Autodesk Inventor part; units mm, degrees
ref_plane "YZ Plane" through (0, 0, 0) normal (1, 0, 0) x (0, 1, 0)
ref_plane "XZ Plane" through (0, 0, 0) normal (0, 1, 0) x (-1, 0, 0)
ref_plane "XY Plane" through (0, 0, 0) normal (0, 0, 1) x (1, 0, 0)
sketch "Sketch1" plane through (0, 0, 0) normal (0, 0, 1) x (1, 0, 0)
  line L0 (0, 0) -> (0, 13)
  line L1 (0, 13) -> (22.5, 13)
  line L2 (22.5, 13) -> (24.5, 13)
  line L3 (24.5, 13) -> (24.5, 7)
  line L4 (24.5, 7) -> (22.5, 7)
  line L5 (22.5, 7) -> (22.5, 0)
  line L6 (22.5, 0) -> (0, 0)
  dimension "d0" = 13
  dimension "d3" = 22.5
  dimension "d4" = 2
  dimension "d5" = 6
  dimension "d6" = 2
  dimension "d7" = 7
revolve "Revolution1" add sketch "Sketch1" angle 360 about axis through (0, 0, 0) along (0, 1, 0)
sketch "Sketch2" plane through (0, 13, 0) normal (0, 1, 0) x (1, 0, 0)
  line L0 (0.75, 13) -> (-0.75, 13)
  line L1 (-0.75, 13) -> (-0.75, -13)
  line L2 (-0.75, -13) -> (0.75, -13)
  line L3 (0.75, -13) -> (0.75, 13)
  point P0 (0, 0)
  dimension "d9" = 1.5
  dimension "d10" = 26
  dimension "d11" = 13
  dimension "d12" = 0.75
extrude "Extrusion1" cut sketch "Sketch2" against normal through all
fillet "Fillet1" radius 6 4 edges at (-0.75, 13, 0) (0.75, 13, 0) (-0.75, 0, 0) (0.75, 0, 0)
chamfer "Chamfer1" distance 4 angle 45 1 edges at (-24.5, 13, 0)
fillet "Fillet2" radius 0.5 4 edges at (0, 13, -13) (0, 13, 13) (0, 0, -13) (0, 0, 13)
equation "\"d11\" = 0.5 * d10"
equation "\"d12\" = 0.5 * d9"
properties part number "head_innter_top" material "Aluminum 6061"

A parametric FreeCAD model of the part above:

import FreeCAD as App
import Part
import Sketcher

V = App.Vector


def edges_at(feature, points):
    """Names of the edges that pass closest to the given points."""
    edges = feature.Shape.Edges
    near = lambda p: min(range(len(edges)), key=lambda i: edges[i].distToShape(Part.Vertex(*p))[0])
    return sorted({f"Edge{near(p) + 1}" for p in points})


def add_polygon(sketch, points):
    """Adds a closed chain of lines whose ends are joined by coincident constraints."""
    first, n = sketch.GeometryCount, len(points)
    for a, b in zip(points, points[1:] + points[:1]):
        sketch.addGeometry(Part.LineSegment(App.Vector(*a, 0), App.Vector(*b, 0)), False)
    for i in range(n):
        sketch.addConstraint(Sketcher.Constraint("Coincident", first + i, 2, first + (i + 1) % n, 1))

doc = App.newDocument("Part")
params = doc.addObject("Spreadsheet::Sheet", "Params")
for row, (alias, value) in enumerate([
    ("sketch1_width", "2 mm"),
    ("sketch1_height", "13 mm"),
    ("sketch1_height2", "7 mm"),
    ("sketch1_width2", "22.5 mm"),
    ("revolution_angle", "360 deg"),
    ("sketch2_height", "26 mm"),
    ("sketch2_width", "1.5 mm"),
    ("fillet_radius", "6 mm"),
    ("chamfer_size", "4 mm"),
    ("fillet2_radius", "0.5 mm"),
], start=1):
    params.set(f"A{row}", alias)
    params.set(f"B{row}", "=" + value)
    params.setAlias(f"B{row}", alias)

body = doc.addObject("PartDesign::Body", "Body")

# Sketch on XY plane
sketch1 = body.newObject("Sketcher::SketchObject", "Sketch")
sketch1.AttachmentSupport = (doc.getObject("XY_Plane"), [""])
sketch1.MapMode = "FlatFace"
add_polygon(sketch1, [(0, 13), (0, 0), (22.5, 0), (22.5, 7), (24.5, 7), (24.5, 13)])  # lines 0-5
sketch1.addConstraint([
    Sketcher.Constraint("Vertical", 0),
    Sketcher.Constraint("Horizontal", 1),
    Sketcher.Constraint("Vertical", 2),
    Sketcher.Constraint("Horizontal", 3),
    Sketcher.Constraint("Vertical", 4),
    Sketcher.Constraint("Horizontal", 5),
    Sketcher.Constraint("Coincident", 0, 2, -1, 1),
    Sketcher.Constraint("DistanceX", 3, 1, 3, 2, 2.0),
    Sketcher.Constraint("DistanceY", 0, 2, 0, 1, 13.0),
    Sketcher.Constraint("DistanceY", 2, 1, 2, 2, 7.0),
    Sketcher.Constraint("DistanceX", 1, 1, 1, 2, 22.5),
])
sketch1.setExpression("Constraints[13]", "Params.sketch1_width")
sketch1.setExpression("Constraints[14]", "Params.sketch1_height")
sketch1.setExpression("Constraints[15]", "Params.sketch1_height2")
sketch1.setExpression("Constraints[16]", "Params.sketch1_width2")
revolution = body.newObject("PartDesign::Revolution", "Revolution")
revolution.Profile = sketch1
revolution.ReferenceAxis = (sketch1, ["V_Axis"])
revolution.setExpression("Angle", "Params.revolution_angle")

# Sketch on XZ plane
sketch2 = body.newObject("Sketcher::SketchObject", "Sketch001")
sketch2.AttachmentSupport = (doc.getObject("XZ_Plane"), [""])
sketch2.MapMode = "FlatFace"
sketch2.AttachmentOffset = App.Placement(V(0, 0, -13), App.Rotation())
add_polygon(sketch2, [(0.75, 13), (0.75, -13), (-0.75, -13), (-0.75, 13)])  # lines 0-3
sketch2.addConstraint([
    Sketcher.Constraint("Vertical", 0),
    Sketcher.Constraint("Horizontal", 1),
    Sketcher.Constraint("Vertical", 2),
    Sketcher.Constraint("Horizontal", 3),
    Sketcher.Constraint("Symmetric", 0, 2, 2, 2, -1, 1),
    Sketcher.Constraint("DistanceY", 0, 2, 0, 1, 26.0),
    Sketcher.Constraint("DistanceX", 1, 2, 1, 1, 1.5),
])
sketch2.setExpression("Constraints[9]", "Params.sketch2_height")
sketch2.setExpression("Constraints[10]", "Params.sketch2_width")
pocket1 = body.newObject("PartDesign::Pocket", "Pocket")
pocket1.Profile = sketch2
pocket1.Type = "ThroughAll"
pocket1.Reversed = True
doc.recompute()

fillet = body.newObject("PartDesign::Fillet", "Fillet")
fillet.Base = (pocket1, edges_at(pocket1, [
    (-0.75, 13, 0),
    (0.75, 13, 0),
    (-0.75, 0, 0),
    (0.75, 0, 0),
]))
fillet.setExpression("Radius", "Params.fillet_radius")
doc.recompute()

chamfer = body.newObject("PartDesign::Chamfer", "Chamfer")
chamfer.Base = (fillet, edges_at(fillet, [(-24.5, 13, 0)]))
chamfer.setExpression("Size", "Params.chamfer_size")
doc.recompute()

fillet2 = body.newObject("PartDesign::Fillet", "Fillet001")
fillet2.Base = (chamfer, edges_at(chamfer, [
    (0, 13, -13),
    (0, 13, 13),
    (0, 0, -13),
    (0, 0, 13),
]))
fillet2.setExpression("Radius", "Params.fillet2_radius")

doc.recompute()
